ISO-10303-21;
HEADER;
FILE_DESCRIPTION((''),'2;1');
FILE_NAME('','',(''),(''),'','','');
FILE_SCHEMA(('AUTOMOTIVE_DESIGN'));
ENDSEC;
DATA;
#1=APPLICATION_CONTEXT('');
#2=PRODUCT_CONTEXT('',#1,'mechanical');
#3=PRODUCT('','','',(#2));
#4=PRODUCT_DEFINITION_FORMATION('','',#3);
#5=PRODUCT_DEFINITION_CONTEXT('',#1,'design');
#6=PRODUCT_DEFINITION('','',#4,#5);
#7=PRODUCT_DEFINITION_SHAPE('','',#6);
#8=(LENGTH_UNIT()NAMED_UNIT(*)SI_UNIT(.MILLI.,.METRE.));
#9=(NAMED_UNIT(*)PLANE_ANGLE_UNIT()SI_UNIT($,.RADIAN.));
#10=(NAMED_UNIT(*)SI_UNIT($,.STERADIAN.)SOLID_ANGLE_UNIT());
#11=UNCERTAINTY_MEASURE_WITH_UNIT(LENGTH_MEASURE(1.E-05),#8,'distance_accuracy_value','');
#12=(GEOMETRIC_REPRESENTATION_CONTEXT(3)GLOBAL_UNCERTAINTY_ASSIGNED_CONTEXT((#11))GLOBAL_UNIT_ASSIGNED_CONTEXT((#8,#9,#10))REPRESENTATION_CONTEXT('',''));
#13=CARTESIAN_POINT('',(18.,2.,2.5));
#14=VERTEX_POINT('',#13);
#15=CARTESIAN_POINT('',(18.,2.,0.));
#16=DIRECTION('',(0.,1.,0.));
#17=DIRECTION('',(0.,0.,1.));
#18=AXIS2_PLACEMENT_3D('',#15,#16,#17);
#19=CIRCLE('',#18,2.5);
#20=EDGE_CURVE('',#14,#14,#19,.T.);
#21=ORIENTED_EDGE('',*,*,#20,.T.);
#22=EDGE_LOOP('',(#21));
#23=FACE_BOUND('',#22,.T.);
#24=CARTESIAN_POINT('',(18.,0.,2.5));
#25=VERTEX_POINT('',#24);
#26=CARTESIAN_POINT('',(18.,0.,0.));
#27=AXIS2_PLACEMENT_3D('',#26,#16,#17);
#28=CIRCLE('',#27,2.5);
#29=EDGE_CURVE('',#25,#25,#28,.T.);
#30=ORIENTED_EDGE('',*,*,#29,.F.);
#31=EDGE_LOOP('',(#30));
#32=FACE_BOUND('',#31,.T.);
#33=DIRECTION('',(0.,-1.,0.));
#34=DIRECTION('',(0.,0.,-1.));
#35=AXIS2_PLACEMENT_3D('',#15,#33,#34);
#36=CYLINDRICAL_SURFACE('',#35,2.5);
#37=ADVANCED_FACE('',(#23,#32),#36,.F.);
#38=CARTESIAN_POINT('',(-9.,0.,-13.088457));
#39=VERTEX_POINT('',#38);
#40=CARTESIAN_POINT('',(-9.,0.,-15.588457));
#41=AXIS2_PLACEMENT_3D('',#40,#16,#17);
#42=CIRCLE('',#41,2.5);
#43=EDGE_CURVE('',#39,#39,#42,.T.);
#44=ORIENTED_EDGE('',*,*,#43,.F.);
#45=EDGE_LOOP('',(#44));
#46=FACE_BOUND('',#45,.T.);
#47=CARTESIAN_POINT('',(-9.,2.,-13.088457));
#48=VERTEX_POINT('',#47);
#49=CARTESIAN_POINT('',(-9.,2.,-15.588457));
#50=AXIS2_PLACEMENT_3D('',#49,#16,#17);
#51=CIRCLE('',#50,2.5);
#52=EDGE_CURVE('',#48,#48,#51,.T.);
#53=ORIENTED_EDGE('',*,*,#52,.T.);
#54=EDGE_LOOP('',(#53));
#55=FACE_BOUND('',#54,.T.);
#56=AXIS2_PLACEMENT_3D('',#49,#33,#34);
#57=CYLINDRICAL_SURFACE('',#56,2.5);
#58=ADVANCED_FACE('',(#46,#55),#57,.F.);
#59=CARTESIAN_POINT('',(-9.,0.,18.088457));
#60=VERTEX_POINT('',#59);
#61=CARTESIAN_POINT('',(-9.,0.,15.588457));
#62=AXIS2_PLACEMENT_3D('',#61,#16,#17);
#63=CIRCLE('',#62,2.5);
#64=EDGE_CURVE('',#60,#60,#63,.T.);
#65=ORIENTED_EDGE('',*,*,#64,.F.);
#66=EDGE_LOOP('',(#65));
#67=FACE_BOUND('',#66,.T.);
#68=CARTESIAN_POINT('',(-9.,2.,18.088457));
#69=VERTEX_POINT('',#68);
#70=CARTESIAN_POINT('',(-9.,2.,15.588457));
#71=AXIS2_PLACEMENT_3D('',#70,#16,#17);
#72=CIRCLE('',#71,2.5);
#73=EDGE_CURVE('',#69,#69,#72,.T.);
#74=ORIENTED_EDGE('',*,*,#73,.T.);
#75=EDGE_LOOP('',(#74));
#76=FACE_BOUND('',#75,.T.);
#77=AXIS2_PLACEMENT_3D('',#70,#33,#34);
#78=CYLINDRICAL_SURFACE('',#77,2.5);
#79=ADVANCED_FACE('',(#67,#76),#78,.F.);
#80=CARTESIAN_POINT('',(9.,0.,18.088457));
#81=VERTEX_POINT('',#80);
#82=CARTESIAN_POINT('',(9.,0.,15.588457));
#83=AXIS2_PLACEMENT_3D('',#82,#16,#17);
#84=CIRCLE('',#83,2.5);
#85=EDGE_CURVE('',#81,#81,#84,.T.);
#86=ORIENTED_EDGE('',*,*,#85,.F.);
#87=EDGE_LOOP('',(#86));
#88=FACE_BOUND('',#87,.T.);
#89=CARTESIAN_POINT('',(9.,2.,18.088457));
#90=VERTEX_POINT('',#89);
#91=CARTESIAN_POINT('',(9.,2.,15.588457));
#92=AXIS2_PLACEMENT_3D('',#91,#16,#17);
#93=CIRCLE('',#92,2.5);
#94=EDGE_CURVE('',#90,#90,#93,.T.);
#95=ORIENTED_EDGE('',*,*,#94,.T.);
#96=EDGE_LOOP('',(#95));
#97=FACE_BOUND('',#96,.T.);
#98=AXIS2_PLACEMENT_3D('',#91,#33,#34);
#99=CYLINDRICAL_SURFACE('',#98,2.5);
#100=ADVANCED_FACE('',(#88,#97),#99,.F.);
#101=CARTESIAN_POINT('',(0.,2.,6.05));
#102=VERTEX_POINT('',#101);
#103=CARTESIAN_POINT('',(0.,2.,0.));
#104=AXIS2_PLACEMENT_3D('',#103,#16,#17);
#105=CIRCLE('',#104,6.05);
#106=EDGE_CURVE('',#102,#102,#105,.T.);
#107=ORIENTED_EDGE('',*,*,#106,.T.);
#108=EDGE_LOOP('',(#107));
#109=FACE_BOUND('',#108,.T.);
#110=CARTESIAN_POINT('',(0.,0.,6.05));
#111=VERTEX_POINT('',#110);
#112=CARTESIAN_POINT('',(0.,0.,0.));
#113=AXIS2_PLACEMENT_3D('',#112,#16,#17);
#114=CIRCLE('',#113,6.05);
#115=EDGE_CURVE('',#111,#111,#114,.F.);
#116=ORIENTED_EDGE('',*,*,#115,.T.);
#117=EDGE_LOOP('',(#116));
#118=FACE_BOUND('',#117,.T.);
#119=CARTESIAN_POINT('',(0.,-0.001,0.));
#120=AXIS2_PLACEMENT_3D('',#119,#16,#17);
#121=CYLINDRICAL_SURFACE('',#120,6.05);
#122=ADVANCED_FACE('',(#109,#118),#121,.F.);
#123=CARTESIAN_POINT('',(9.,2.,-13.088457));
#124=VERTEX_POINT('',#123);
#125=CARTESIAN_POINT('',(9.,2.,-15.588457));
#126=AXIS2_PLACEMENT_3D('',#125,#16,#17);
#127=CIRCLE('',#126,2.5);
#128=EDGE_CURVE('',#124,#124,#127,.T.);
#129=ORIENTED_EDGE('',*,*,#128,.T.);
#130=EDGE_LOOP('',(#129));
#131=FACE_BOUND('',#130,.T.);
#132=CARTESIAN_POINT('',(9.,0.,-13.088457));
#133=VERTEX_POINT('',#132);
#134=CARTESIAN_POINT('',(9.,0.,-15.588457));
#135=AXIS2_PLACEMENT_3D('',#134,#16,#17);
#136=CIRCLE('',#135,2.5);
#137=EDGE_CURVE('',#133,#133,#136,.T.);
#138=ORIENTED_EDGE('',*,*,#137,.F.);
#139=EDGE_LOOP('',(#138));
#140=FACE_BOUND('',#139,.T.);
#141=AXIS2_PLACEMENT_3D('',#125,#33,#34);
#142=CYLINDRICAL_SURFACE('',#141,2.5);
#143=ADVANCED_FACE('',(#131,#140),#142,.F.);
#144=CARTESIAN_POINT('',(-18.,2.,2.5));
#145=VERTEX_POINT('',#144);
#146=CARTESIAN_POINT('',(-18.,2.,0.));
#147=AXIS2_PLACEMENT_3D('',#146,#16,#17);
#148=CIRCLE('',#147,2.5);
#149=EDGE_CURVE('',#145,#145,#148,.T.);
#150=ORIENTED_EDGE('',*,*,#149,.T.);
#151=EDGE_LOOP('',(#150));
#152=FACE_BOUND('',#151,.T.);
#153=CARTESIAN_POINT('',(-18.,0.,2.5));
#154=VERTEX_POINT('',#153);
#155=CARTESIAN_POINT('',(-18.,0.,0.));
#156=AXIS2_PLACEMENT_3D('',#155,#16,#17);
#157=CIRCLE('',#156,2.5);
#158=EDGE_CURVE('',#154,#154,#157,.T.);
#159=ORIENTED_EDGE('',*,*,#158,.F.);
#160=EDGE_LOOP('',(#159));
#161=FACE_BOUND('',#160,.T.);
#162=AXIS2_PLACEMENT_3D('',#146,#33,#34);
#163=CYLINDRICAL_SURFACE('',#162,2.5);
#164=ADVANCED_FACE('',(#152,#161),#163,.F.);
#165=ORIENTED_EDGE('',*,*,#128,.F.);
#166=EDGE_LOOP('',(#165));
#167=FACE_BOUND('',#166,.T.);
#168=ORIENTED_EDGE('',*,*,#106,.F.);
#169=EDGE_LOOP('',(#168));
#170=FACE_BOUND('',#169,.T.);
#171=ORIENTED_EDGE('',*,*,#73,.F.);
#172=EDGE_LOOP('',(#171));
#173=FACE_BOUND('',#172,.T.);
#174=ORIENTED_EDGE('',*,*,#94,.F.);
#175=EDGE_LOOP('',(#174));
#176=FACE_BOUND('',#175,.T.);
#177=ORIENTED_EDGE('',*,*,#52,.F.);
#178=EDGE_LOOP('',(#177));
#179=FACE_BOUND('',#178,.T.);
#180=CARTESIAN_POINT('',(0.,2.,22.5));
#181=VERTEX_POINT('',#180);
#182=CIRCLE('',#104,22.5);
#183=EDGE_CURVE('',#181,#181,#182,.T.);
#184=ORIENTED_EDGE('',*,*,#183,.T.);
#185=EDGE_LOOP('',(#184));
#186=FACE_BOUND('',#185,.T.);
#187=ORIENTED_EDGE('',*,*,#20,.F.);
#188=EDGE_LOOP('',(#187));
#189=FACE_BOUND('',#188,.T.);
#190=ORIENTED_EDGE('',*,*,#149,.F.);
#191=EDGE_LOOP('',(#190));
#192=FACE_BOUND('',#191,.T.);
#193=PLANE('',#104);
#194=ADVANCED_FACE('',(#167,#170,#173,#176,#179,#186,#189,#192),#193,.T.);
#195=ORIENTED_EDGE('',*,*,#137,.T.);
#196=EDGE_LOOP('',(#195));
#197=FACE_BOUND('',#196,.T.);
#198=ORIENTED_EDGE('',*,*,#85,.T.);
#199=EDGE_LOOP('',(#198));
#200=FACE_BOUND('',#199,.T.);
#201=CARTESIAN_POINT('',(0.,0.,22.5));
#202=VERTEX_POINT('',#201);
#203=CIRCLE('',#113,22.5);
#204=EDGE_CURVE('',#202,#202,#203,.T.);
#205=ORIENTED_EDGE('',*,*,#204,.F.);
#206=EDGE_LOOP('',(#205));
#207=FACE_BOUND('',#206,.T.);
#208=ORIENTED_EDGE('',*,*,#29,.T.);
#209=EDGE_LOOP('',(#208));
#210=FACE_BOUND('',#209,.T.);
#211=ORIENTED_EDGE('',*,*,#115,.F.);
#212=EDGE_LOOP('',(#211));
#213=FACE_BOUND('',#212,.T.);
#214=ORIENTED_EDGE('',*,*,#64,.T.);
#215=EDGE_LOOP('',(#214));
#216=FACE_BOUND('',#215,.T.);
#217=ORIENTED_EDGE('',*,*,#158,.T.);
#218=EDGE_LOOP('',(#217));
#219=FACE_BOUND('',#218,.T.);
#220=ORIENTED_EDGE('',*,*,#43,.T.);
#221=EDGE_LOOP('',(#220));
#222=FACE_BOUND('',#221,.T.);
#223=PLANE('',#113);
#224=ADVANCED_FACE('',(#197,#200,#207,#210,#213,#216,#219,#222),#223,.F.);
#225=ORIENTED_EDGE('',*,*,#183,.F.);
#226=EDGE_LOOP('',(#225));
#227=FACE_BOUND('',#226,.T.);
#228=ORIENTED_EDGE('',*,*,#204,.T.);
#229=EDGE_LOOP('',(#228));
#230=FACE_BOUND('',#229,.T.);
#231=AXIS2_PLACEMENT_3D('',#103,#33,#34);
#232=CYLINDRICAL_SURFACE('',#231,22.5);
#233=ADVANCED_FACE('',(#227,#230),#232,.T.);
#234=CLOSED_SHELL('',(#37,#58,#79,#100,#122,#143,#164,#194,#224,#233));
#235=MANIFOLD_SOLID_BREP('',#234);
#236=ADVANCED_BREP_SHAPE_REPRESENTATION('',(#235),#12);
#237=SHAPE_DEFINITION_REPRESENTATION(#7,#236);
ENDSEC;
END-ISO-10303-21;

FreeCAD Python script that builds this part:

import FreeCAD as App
import Part
import Sketcher

V = App.Vector

doc = App.newDocument("Part")
body = doc.addObject("PartDesign::Body", "Body")

sketch1 = doc.addObject("Sketcher::SketchObject", "Sketch")
body.addObject(sketch1)
sketch1.AttachmentSupport = (doc.XZ_Plane, [""])
sketch1.MapMode = "FlatFace"
sketch1.addGeometry([
    Part.Circle(V(0, 0, 0), V(0, 0, 1), 22.5),
    Part.Circle(V(-9, -15.6, 0), V(0, 0, 1), 2.5),
    Part.Circle(V(-18, 0, 0), V(0, 0, 1), 2.5),
    Part.Circle(V(-9, 15.6, 0), V(0, 0, 1), 2.5),
    Part.Circle(V(9, -15.6, 0), V(0, 0, 1), 2.5),
    Part.Circle(V(18, 0, 0), V(0, 0, 1), 2.5),
    Part.Circle(V(9, 15.6, 0), V(0, 0, 1), 2.5),
], False)
sketch1.addConstraint([
    Sketcher.Constraint("Coincident", 0, 3, -1, 1),
    Sketcher.Constraint("Equal", 1, 2),
    Sketcher.Constraint("Equal", 2, 3),
    Sketcher.Constraint("Equal", 3, 4),
    Sketcher.Constraint("Equal", 4, 5),
    Sketcher.Constraint("Equal", 5, 6),
    Sketcher.Constraint("Symmetric", 3, 3, 4, 3, -1, 1),
    Sketcher.Constraint("Symmetric", 2, 3, 5, 3, -1, 1),
    Sketcher.Constraint("Symmetric", 1, 3, 6, 3, -1, 1),
    Sketcher.Constraint("Symmetric", 1, 3, 4, 3, -2),
    Sketcher.Constraint("PointOnObject", 2, 3, -1),
    Sketcher.Constraint("Diameter", 0, 45.0),
    Sketcher.Constraint("Diameter", 1, 5.0),
    Sketcher.Constraint("DistanceX", 1, 3, -1, 1, 9.0),
    Sketcher.Constraint("DistanceX", 2, 3, -1, 1, 18.0),
    Sketcher.Constraint("DistanceY", 1, 3, -1, 1, 15.588457),
])
pad1 = doc.addObject("PartDesign::Pad", "Pad")
body.addObject(pad1)
pad1.Profile = sketch1
pad1.Length = 2
pad1.Reversed = True

sketch2 = doc.addObject("Sketcher::SketchObject", "Sketch001")
body.addObject(sketch2)
sketch2.AttachmentSupport = (doc.XZ_Plane, [""])
sketch2.MapMode = "FlatFace"
sketch2.AttachmentOffset = App.Placement(V(0, 0, -2), App.Rotation())
sketch2.addGeometry(Part.Circle(V(0, 0, 0), V(0, 0, 1), 6), False)
sketch2.addConstraint([
    Sketcher.Constraint("Coincident", 0, 3, -1, 1),
    Sketcher.Constraint("Diameter", 0, 12.1),
])
pocket1 = doc.addObject("PartDesign::Pocket", "Pocket")
body.addObject(pocket1)
pocket1.Profile = sketch2
pocket1.Type = "UpToFirst"
pocket1.Reversed = True

doc.recompute()
